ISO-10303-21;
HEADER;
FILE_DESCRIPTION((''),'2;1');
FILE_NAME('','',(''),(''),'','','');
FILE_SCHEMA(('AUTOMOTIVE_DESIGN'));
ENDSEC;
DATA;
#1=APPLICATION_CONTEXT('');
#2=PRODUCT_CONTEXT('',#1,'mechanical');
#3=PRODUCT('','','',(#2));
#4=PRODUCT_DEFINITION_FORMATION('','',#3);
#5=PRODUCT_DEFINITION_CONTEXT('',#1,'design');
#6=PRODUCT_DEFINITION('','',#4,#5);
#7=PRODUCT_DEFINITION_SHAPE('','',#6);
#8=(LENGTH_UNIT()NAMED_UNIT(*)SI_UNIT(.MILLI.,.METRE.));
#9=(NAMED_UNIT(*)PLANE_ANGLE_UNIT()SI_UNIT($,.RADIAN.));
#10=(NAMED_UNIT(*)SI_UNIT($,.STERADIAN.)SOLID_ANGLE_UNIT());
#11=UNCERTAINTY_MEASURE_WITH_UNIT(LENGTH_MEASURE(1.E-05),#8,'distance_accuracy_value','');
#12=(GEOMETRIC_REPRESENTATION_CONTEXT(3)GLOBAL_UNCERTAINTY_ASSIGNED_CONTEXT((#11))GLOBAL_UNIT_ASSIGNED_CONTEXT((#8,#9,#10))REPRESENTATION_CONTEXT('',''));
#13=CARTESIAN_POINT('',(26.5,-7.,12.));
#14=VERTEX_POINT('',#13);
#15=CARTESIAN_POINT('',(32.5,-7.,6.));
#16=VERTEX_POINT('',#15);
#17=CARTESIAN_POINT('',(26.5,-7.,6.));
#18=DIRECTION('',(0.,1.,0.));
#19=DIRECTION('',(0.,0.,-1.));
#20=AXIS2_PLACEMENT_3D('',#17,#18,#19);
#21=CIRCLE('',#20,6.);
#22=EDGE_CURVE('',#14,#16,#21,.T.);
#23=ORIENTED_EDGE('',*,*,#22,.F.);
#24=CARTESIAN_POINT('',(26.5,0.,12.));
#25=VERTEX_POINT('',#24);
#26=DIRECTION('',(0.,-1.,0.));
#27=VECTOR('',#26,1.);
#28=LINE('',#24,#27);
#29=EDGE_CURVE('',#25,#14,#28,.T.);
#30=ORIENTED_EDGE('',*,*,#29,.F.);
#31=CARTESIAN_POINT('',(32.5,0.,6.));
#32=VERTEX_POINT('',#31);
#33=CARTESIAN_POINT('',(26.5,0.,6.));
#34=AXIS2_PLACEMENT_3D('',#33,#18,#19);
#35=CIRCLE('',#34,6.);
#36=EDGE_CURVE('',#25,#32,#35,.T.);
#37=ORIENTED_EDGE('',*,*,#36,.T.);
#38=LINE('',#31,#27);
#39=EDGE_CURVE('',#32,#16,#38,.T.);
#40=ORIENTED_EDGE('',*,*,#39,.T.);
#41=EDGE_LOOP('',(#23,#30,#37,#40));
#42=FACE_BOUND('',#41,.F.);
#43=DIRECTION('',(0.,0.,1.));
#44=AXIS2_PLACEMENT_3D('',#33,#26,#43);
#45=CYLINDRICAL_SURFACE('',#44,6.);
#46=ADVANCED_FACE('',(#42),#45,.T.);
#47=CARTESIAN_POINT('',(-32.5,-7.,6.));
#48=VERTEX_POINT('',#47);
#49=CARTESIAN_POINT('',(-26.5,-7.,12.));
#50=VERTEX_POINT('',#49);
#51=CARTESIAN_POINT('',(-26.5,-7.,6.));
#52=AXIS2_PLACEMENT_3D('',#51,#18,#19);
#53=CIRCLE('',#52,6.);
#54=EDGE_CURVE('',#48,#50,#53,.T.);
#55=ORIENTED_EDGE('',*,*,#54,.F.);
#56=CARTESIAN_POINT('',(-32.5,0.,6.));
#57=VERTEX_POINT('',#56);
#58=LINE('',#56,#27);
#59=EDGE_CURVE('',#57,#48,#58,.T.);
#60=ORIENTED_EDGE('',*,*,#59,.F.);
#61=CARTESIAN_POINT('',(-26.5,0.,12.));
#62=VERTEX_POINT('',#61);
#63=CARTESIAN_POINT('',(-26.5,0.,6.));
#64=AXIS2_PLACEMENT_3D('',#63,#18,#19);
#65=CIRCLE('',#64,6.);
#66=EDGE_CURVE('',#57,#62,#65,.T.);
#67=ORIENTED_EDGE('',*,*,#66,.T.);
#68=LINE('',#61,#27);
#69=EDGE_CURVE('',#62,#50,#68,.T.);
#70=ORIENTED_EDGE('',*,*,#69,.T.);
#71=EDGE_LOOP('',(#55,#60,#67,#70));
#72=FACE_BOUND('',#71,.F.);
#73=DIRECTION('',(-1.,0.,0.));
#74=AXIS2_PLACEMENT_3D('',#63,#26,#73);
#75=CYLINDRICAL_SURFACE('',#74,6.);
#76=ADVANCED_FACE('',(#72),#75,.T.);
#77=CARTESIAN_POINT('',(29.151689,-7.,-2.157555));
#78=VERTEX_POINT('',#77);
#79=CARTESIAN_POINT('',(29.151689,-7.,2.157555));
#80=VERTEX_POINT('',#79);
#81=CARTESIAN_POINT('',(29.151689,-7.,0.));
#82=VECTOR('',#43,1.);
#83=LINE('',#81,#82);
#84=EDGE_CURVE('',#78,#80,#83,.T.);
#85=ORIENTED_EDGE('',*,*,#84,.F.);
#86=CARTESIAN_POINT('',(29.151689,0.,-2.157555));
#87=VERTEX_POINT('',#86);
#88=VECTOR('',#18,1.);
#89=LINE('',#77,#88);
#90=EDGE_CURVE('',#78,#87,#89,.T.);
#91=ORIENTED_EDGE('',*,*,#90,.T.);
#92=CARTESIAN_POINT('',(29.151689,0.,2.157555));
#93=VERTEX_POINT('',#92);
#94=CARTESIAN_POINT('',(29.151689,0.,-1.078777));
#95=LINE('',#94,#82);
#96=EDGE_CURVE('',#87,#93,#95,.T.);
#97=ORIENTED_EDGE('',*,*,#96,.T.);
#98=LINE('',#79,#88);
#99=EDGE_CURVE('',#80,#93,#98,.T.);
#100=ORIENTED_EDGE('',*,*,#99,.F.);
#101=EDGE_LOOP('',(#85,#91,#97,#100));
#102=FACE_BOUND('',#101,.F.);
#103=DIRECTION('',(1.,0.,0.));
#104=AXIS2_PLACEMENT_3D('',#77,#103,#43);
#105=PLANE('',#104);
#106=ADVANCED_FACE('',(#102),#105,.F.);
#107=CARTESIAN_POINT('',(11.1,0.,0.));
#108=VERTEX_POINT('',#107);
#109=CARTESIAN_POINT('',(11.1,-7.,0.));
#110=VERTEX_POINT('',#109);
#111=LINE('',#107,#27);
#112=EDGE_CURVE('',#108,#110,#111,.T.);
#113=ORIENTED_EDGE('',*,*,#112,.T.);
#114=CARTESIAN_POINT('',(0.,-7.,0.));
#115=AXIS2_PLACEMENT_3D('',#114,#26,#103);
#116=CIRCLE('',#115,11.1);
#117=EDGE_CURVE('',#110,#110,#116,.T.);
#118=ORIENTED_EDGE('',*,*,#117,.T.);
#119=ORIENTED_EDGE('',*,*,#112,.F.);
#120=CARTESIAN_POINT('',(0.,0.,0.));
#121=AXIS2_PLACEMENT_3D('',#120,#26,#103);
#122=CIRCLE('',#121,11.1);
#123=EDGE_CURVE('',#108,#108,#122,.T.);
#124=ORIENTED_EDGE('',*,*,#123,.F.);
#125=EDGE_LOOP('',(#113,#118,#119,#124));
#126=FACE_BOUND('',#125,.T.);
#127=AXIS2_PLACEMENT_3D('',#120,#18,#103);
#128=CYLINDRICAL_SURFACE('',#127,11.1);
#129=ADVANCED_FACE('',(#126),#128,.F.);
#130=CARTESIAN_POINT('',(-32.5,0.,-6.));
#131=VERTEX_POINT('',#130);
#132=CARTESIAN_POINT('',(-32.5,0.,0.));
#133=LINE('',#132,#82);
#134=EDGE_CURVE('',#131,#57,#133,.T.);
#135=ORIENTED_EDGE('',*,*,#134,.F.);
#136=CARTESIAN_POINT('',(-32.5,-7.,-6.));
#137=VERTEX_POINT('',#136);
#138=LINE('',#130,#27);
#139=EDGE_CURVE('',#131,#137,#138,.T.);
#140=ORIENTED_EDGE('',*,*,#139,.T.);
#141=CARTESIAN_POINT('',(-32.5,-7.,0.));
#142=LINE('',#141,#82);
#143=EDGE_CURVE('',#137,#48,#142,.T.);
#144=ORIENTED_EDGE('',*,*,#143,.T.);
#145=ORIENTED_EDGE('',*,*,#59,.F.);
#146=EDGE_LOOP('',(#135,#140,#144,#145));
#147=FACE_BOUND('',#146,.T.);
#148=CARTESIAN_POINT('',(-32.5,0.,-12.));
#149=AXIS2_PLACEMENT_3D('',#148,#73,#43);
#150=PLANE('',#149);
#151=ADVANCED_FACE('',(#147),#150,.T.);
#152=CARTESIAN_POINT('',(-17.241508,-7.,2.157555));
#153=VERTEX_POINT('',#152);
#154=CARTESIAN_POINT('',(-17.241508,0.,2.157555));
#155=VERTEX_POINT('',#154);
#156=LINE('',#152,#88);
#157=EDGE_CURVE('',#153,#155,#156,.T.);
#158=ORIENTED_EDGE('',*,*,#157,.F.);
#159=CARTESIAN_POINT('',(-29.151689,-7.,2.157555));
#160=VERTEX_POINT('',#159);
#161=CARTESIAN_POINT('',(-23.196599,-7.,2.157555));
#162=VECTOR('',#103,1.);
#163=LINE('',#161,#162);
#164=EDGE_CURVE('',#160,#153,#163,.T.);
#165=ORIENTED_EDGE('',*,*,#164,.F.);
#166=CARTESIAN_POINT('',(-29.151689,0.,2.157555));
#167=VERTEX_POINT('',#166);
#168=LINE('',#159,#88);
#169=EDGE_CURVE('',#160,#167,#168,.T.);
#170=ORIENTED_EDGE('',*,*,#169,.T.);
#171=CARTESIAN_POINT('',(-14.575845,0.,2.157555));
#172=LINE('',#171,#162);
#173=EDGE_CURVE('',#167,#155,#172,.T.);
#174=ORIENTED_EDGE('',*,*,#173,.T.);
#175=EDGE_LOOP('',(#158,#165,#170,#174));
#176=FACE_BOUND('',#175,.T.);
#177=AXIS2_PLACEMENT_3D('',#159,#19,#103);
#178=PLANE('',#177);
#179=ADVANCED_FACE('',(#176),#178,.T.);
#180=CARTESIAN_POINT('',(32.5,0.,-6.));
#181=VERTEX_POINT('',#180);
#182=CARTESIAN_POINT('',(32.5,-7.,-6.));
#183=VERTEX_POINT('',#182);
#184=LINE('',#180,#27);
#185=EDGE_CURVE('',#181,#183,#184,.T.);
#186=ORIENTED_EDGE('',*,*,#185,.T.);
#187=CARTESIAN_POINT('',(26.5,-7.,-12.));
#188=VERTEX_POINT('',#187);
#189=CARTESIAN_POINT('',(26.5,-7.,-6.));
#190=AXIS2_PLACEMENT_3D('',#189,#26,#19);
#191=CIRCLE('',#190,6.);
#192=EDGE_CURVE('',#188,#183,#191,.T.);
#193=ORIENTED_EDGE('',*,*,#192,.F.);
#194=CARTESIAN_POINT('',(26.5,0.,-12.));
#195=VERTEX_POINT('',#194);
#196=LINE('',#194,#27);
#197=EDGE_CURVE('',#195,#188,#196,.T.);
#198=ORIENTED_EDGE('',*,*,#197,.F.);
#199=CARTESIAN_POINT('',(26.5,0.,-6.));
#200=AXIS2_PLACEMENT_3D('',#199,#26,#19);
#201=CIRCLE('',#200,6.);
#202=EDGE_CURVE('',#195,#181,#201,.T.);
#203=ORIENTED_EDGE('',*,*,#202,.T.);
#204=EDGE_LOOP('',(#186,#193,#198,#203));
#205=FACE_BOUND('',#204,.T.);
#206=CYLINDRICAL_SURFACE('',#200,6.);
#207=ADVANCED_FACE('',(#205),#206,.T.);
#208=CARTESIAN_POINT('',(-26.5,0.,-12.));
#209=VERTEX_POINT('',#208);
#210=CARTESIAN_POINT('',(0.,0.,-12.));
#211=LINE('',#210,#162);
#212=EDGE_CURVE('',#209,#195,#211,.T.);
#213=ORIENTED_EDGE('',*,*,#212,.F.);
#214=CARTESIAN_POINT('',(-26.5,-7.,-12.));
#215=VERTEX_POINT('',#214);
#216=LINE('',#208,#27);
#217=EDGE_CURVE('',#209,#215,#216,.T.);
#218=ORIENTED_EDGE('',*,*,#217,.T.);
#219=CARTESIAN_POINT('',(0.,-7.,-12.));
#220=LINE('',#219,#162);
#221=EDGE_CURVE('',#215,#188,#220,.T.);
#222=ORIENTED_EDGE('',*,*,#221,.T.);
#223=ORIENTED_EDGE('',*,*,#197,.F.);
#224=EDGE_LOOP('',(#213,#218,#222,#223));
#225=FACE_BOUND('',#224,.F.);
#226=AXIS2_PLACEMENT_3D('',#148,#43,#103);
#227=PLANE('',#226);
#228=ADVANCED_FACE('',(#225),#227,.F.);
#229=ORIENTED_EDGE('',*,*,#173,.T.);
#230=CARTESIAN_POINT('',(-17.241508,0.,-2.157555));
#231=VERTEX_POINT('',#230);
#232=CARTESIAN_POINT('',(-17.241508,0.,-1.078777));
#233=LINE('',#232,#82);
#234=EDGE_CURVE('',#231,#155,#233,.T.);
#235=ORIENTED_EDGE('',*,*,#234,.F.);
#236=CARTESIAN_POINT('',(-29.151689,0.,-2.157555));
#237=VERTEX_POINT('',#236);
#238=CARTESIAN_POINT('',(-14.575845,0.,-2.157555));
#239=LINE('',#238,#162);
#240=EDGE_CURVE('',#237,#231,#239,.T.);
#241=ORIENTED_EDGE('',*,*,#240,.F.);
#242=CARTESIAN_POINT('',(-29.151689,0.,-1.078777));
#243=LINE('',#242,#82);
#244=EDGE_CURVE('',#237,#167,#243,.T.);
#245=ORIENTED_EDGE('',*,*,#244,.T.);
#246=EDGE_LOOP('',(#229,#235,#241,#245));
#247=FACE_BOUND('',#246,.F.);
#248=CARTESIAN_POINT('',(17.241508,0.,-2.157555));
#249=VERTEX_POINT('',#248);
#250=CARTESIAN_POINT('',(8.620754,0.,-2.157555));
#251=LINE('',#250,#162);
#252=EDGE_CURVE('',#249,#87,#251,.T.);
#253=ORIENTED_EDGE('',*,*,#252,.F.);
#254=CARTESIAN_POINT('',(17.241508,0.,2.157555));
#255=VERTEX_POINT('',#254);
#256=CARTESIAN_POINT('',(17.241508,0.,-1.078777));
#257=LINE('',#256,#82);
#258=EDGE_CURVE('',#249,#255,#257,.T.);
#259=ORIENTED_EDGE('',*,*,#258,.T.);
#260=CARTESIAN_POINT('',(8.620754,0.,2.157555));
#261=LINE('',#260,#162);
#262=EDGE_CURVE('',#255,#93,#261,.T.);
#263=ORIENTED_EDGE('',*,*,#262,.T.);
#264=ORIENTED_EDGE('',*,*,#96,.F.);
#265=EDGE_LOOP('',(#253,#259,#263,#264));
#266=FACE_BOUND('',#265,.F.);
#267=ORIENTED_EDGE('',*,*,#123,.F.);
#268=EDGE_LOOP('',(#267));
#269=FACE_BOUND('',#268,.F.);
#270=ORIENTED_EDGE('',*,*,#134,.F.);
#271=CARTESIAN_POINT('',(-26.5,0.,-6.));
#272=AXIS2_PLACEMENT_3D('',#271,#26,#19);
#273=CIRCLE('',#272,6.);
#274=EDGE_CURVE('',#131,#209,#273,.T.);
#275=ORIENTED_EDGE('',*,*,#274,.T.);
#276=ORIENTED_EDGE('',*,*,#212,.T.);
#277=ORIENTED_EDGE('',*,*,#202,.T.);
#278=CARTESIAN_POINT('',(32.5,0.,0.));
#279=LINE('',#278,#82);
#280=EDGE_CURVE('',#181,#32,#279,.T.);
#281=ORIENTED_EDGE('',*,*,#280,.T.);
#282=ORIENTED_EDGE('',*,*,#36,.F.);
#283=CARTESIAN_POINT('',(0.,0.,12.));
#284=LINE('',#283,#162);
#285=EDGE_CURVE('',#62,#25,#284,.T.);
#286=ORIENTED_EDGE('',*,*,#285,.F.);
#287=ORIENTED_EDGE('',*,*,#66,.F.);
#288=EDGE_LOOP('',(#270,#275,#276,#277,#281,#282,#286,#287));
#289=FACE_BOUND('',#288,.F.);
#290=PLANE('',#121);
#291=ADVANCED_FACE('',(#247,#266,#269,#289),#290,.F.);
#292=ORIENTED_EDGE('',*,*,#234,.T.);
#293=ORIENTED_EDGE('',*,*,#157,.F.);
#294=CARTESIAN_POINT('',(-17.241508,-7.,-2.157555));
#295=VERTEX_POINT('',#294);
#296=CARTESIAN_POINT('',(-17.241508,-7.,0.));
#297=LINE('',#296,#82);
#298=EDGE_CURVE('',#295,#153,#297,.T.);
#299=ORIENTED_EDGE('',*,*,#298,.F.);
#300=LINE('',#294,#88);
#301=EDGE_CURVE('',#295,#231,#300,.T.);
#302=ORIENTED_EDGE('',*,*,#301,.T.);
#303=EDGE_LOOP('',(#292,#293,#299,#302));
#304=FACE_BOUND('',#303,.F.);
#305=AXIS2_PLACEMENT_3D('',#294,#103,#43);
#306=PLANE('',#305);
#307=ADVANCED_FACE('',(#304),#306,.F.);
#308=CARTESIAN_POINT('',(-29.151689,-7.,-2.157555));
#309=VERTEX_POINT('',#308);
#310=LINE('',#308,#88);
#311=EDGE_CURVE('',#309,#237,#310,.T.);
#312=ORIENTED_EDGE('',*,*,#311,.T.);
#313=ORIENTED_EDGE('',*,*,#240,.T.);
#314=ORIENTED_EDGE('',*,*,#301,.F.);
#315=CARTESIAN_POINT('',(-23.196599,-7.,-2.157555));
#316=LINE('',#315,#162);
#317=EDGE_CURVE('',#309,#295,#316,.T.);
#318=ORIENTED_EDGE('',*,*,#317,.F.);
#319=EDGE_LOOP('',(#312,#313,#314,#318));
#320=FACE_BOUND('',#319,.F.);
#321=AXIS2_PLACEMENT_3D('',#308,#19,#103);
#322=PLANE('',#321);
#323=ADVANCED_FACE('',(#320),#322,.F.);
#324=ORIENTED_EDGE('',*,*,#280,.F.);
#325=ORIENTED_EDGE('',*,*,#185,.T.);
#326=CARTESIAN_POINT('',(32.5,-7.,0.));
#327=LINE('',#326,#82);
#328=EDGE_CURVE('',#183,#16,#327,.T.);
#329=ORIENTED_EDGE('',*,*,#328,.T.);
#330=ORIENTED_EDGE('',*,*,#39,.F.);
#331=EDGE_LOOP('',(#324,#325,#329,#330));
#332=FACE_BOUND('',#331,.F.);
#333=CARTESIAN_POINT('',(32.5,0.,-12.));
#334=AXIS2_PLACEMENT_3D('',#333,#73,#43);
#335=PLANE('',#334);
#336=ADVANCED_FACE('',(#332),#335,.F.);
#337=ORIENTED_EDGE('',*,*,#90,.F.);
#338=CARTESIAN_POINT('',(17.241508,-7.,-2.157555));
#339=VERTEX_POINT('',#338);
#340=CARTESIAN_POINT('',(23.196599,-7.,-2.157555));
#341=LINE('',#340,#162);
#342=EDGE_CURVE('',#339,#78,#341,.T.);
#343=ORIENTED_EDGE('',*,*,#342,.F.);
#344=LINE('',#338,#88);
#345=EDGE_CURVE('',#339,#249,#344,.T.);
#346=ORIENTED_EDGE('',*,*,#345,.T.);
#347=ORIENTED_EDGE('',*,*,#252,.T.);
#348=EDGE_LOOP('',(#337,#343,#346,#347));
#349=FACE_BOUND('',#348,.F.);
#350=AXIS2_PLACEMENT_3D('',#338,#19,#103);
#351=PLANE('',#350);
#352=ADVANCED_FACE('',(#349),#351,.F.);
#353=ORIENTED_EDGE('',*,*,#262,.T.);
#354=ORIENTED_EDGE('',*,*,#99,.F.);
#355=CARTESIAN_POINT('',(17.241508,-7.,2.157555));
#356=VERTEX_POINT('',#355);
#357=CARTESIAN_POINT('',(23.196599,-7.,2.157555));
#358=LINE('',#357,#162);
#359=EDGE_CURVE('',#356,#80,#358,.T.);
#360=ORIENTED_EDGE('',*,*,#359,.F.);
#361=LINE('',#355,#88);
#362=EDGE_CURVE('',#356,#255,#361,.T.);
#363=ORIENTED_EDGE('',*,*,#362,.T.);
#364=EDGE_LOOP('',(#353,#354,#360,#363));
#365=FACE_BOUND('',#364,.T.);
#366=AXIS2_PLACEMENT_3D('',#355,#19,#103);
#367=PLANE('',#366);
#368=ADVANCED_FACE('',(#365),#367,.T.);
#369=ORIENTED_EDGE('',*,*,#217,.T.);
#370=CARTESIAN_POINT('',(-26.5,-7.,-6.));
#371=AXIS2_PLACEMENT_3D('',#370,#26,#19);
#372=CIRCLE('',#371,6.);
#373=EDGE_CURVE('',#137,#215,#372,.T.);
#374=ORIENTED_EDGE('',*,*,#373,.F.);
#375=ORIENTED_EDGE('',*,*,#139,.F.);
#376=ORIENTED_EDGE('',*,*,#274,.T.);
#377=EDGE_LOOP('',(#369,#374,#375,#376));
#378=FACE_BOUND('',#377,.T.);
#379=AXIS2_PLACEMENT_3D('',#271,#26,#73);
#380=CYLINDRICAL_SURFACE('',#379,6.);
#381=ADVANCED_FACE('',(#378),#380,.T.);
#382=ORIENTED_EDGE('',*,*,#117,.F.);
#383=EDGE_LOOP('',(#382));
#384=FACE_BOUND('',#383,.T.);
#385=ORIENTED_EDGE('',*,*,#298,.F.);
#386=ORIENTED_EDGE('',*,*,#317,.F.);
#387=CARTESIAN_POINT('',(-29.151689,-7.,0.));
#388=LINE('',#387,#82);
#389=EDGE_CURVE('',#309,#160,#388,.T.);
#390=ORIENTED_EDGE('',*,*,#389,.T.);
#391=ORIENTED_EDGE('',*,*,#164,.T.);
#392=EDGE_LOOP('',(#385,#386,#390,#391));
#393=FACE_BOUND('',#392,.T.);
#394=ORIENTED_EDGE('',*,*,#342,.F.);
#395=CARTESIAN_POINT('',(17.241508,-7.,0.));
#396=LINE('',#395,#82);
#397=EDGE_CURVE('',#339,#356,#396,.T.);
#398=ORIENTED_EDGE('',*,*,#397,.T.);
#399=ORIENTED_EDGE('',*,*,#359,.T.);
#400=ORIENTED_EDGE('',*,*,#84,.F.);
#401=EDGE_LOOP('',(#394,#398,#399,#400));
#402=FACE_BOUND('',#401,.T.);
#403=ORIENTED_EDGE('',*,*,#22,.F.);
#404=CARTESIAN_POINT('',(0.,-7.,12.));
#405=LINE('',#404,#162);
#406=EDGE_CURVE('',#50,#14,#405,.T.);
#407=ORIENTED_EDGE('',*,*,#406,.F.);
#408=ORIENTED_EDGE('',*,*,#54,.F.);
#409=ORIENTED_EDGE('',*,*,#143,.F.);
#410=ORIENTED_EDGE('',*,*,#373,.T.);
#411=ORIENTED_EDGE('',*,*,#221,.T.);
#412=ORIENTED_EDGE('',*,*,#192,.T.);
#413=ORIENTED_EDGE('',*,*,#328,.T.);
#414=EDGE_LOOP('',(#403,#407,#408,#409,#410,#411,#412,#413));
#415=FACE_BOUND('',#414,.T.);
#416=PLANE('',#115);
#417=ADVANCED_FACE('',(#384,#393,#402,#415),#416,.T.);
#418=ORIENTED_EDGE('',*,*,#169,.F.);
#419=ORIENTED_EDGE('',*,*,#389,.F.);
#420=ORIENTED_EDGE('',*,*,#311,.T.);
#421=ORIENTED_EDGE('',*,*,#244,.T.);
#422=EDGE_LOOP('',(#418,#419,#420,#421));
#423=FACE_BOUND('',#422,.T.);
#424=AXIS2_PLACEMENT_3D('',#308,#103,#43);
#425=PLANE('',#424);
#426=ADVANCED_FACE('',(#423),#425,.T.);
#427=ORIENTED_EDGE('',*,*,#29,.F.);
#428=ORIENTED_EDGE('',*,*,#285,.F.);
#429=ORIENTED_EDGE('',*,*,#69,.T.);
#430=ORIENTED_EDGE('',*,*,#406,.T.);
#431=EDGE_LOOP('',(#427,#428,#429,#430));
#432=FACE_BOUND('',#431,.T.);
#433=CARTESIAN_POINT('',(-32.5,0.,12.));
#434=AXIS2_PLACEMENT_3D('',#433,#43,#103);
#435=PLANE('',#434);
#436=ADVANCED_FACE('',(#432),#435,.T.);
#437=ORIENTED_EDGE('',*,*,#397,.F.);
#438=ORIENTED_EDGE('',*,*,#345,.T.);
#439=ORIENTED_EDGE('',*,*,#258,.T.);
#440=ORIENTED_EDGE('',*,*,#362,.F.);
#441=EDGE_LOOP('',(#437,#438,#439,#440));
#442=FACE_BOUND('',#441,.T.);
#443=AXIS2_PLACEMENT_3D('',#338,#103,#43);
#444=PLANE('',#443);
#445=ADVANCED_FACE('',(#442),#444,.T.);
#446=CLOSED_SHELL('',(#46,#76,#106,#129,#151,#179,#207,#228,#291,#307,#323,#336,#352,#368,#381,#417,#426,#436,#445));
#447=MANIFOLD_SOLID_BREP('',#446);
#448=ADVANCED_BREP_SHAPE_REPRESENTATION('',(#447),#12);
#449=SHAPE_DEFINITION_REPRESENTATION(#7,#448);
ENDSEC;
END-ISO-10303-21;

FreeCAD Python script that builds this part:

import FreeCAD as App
import Part
import Sketcher
from FreeCAD import Vector


def edges_at(feature, points):
    """Names of the edges that pass closest to the given points."""
    edges = feature.Shape.Edges
    near = lambda p: min(range(len(edges)), key=lambda i: edges[i].distToShape(Part.Vertex(*p))[0])
    return sorted({f"Edge{near(p) + 1}" for p in points})

doc = App.newDocument("Part")
body = doc.addObject("PartDesign::Body", "Body")

# Sketch on XZ plane
sketch1 = body.newObject("Sketcher::SketchObject", "Sketch")
sketch1.AttachmentSupport = (doc.getObject("XZ_Plane"), [""])
sketch1.MapMode = "FlatFace"
sketch1.addGeometry(Part.LineSegment(Vector(-32.5, 12, 0), Vector(-32.5, -12, 0)), False)
sketch1.addGeometry(Part.LineSegment(Vector(-32.5, -12, 0), Vector(32.5, -12, 0)), False)
sketch1.addGeometry(Part.LineSegment(Vector(32.5, -12, 0), Vector(32.5, 12, 0)), False)
sketch1.addGeometry(Part.LineSegment(Vector(32.5, 12, 0), Vector(-32.5, 12, 0)), False)
sketch1.addGeometry(Part.Circle(Vector(0, 0, 0), Vector(0, 0, 1), 11.1), False)
sketch1.addConstraint(Sketcher.Constraint("Coincident", 0, 2, 1, 1))
sketch1.addConstraint(Sketcher.Constraint("Coincident", 1, 2, 2, 1))
sketch1.addConstraint(Sketcher.Constraint("Coincident", 2, 2, 3, 1))
sketch1.addConstraint(Sketcher.Constraint("Coincident", 3, 2, 0, 1))
sketch1.addConstraint(Sketcher.Constraint("Vertical", 0))
sketch1.addConstraint(Sketcher.Constraint("Horizontal", 1))
sketch1.addConstraint(Sketcher.Constraint("Vertical", 2))
sketch1.addConstraint(Sketcher.Constraint("Horizontal", 3))
sketch1.addConstraint(Sketcher.Constraint("Coincident", 4, 3, -1, 1))
sketch1.addConstraint(Sketcher.Constraint("Symmetric", 0, 2, 2, 2, -1, 1))
sketch1.addConstraint(Sketcher.Constraint("Diameter", 4, 22.2))
sketch1.addConstraint(Sketcher.Constraint("DistanceX", 1, 1, 1, 2, 65.0))
sketch1.addConstraint(Sketcher.Constraint("DistanceY", 0, 2, 0, 1, 24.0))
pad1 = body.newObject("PartDesign::Pad", "Pad")
pad1.Profile = sketch1
pad1.Length = 7
doc.recompute()

fillet = body.newObject("PartDesign::Fillet", "Fillet")
fillet.Base = (pad1, edges_at(pad1, [
    (-32.5, -3.5, 12),
    (-32.5, -3.5, -12),
    (32.5, -3.5, -12),
    (32.5, -3.5, 12),
]))
fillet.Radius = 6

# Sketch on XZ plane
sketch2 = body.newObject("Sketcher::SketchObject", "Sketch001")
sketch2.AttachmentSupport = (doc.getObject("XZ_Plane"), [""])
sketch2.MapMode = "FlatFace"
sketch2.AttachmentOffset = App.Placement(Vector(0, 0, 7), App.Rotation())
sketch2.addGeometry(Part.LineSegment(Vector(-29.151689, 2.157555, 0), Vector(-29.151689, -2.157555, 0)), False)
sketch2.addGeometry(Part.LineSegment(Vector(-29.151689, -2.157555, 0), Vector(-17.241508, -2.157555, 0)), False)
sketch2.addGeometry(Part.LineSegment(Vector(-17.241508, -2.157555, 0), Vector(-17.241508, 2.157555, 0)), False)
sketch2.addGeometry(Part.LineSegment(Vector(-17.241508, 2.157555, 0), Vector(-29.151689, 2.157555, 0)), False)
sketch2.addGeometry(Part.LineSegment(Vector(17.241508, 2.157555, 0), Vector(17.241508, -2.157555, 0)), False)
sketch2.addGeometry(Part.LineSegment(Vector(17.241508, -2.157555, 0), Vector(29.151689, -2.157555, 0)), False)
sketch2.addGeometry(Part.LineSegment(Vector(29.151689, -2.157555, 0), Vector(29.151689, 2.157555, 0)), False)
sketch2.addGeometry(Part.LineSegment(Vector(29.151689, 2.157555, 0), Vector(17.241508, 2.157555, 0)), False)
sketch2.addConstraint(Sketcher.Constraint("Coincident", 0, 2, 1, 1))
sketch2.addConstraint(Sketcher.Constraint("Coincident", 1, 2, 2, 1))
sketch2.addConstraint(Sketcher.Constraint("Coincident", 2, 2, 3, 1))
sketch2.addConstraint(Sketcher.Constraint("Coincident", 3, 2, 0, 1))
sketch2.addConstraint(Sketcher.Constraint("Coincident", 4, 2, 5, 1))
sketch2.addConstraint(Sketcher.Constraint("Coincident", 5, 2, 6, 1))
sketch2.addConstraint(Sketcher.Constraint("Coincident", 6, 2, 7, 1))
sketch2.addConstraint(Sketcher.Constraint("Coincident", 7, 2, 4, 1))
sketch2.addConstraint(Sketcher.Constraint("Vertical", 0))
sketch2.addConstraint(Sketcher.Constraint("Horizontal", 1))
sketch2.addConstraint(Sketcher.Constraint("Vertical", 2))
sketch2.addConstraint(Sketcher.Constraint("Horizontal", 3))
sketch2.addConstraint(Sketcher.Constraint("Vertical", 4))
sketch2.addConstraint(Sketcher.Constraint("Horizontal", 5))
sketch2.addConstraint(Sketcher.Constraint("Vertical", 6))
sketch2.addConstraint(Sketcher.Constraint("Horizontal", 7))
sketch2.addConstraint(Sketcher.Constraint("Symmetric", 2, 2, 4, 2, -1, 1))
sketch2.addConstraint(Sketcher.Constraint("Symmetric", 0, 2, 6, 2, -1, 1))
sketch2.addConstraint(Sketcher.Constraint("Horizontal", 1, 2, 4, 2))
sketch2.addConstraint(Sketcher.Constraint("DistanceX", 1, 1, 1, 2, 11.910181))
sketch2.addConstraint(Sketcher.Constraint("DistanceY", 0, 2, 0, 1, 4.31511))
sketch2.addConstraint(Sketcher.Constraint("DistanceX", 0, 2, -1, 1, 29.151689))
pocket1 = body.newObject("PartDesign::Pocket", "Pocket")
pocket1.Profile = sketch2
pocket1.Type = "ThroughAll"

doc.recompute()
